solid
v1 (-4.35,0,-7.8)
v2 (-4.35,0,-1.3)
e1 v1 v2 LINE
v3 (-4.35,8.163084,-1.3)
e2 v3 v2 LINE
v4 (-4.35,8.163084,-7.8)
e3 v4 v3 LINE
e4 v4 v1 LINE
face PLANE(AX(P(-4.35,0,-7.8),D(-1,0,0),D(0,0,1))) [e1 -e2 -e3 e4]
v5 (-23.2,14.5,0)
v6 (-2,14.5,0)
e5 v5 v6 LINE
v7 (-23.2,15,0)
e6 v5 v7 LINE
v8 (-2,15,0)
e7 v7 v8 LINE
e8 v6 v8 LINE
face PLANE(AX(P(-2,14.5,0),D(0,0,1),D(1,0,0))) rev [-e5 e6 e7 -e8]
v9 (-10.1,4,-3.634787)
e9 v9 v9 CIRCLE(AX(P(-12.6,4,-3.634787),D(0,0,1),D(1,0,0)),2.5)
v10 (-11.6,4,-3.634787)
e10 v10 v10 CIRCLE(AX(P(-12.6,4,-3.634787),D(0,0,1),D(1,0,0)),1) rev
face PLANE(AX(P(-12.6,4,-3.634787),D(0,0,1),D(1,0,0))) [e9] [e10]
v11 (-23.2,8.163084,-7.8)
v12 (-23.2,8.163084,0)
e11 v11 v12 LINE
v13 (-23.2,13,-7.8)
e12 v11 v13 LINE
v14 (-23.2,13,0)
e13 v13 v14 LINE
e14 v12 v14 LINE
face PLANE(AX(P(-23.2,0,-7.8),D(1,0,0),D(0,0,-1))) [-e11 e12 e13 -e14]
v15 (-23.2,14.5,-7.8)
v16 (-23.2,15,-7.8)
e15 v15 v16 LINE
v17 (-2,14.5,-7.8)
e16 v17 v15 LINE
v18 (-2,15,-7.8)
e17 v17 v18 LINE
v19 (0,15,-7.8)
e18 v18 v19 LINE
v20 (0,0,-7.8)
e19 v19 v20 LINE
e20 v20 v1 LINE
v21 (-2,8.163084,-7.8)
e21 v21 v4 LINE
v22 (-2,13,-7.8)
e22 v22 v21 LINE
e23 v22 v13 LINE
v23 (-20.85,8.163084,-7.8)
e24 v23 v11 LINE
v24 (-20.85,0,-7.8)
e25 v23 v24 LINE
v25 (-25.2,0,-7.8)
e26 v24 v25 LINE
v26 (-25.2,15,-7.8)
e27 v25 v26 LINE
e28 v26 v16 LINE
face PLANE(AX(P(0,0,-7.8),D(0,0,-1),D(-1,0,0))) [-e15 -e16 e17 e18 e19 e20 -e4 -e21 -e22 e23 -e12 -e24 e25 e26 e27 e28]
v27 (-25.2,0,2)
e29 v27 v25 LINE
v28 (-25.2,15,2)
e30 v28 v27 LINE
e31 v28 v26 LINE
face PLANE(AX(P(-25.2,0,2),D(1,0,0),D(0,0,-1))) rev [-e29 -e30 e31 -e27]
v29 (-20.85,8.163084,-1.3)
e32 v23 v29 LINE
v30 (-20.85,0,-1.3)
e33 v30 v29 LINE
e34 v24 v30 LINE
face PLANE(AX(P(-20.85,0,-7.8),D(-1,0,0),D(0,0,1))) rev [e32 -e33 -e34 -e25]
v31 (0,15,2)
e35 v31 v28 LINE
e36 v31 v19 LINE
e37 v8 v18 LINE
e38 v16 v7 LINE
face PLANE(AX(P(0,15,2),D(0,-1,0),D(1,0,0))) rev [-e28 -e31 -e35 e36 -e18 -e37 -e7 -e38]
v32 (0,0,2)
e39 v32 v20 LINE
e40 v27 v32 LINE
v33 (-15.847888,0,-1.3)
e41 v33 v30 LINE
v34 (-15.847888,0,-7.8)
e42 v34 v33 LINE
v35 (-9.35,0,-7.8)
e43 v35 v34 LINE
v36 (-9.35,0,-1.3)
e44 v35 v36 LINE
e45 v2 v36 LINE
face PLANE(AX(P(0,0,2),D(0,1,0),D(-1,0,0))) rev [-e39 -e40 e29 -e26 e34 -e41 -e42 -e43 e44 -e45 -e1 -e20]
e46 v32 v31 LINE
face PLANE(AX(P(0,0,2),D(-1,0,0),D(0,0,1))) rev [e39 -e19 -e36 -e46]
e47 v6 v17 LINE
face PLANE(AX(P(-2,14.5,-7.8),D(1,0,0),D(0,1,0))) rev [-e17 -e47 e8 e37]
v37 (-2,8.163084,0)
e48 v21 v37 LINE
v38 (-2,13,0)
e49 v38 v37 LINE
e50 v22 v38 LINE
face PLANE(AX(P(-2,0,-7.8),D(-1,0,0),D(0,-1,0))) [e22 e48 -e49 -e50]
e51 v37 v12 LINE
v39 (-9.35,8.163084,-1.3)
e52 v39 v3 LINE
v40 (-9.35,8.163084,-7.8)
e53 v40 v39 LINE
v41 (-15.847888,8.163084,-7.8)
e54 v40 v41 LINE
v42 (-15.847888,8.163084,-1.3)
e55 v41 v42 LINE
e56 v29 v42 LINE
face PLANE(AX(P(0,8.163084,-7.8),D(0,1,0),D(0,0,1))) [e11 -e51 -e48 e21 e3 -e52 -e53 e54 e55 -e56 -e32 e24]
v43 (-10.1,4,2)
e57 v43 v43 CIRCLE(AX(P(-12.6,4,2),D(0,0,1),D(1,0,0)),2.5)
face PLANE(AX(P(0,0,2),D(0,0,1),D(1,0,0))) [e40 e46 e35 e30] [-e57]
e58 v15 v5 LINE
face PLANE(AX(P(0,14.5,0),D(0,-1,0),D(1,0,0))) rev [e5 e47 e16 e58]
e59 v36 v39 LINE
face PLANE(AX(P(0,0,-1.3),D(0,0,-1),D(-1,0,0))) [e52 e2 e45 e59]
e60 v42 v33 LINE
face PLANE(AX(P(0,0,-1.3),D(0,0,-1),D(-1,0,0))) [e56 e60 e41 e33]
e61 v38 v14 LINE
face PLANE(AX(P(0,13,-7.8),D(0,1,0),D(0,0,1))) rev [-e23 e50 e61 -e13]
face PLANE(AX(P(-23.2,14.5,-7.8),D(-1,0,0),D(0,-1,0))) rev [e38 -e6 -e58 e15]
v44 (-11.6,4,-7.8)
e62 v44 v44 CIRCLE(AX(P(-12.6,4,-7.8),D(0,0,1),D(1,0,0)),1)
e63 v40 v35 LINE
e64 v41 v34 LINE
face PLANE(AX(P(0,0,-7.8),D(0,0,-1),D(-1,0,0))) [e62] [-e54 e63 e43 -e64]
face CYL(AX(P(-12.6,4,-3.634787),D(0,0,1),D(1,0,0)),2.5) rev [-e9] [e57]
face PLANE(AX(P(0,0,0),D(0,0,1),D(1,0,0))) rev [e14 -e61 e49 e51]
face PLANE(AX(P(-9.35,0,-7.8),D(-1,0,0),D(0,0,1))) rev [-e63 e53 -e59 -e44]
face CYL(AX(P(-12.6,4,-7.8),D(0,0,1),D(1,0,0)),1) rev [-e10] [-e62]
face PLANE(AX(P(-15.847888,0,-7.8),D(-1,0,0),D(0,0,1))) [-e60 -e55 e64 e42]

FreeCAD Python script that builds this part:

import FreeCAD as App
import Part
import Sketcher
from FreeCAD import Vector
Q = App.Units.Quantity

doc = App.newDocument("Part")
body = doc.addObject("PartDesign::Body", "Body")

# Sketch on XY plane
sketch1 = doc.addObject("Sketcher::SketchObject", "Sketch")
body.addObject(sketch1)
sketch1.AttachmentSupport = (doc.XY_Plane, [""])
sketch1.MapMode = "FlatFace"
sketch1.addGeometry([
    Part.LineSegment(Vector(-25.2, 15, 0), Vector(-25.2, 0, 0)),
    Part.LineSegment(Vector(-25.2, 0, 0), Vector(0, 0, 0)),
    Part.LineSegment(Vector(0, 0, 0), Vector(0, 15, 0)),
    Part.LineSegment(Vector(0, 15, 0), Vector(-25.2, 15, 0)),
], False)
sketch1.addConstraint([
    Sketcher.Constraint("Coincident", 0, 2, 1, 1),
    Sketcher.Constraint("Coincident", 1, 2, 2, 1),
    Sketcher.Constraint("Coincident", 2, 2, 3, 1),
    Sketcher.Constraint("Coincident", 3, 2, 0, 1),
    Sketcher.Constraint("Vertical", 0),
    Sketcher.Constraint("Horizontal", 1),
    Sketcher.Constraint("Vertical", 2),
    Sketcher.Constraint("Horizontal", 3),
    Sketcher.Constraint("Coincident", 1, 2, -1, 1),
    Sketcher.Constraint("DistanceY", 0, 2, 0, 1, Q("15 mm")),
    Sketcher.Constraint("DistanceX", 1, 1, 1, 2, Q("25.2 mm")),
])
pad1 = doc.addObject("PartDesign::Pad", "Pad")
body.addObject(pad1)
pad1.Profile = sketch1
pad1.Length = 2

# Sketch on XY plane
sketch2 = doc.addObject("Sketcher::SketchObject", "Sketch001")
body.addObject(sketch2)
sketch2.AttachmentSupport = (doc.XY_Plane, [""])
sketch2.MapMode = "FlatFace"
sketch2.addGeometry([
    Part.LineSegment(Vector(0, 15, 0), Vector(0, 0, 0)),  # 0
    Part.LineSegment(Vector(0, 0, 0), Vector(-2, 0, 0)),  # 1
    Part.LineSegment(Vector(-2, 0, 0), Vector(-2, 13, 0)),  # 2
    Part.LineSegment(Vector(-2, 13, 0), Vector(-23.2, 13, 0)),  # 3
    Part.LineSegment(Vector(-23.2, 13, 0), Vector(-23.2, 0, 0)),  # 4
    Part.LineSegment(Vector(-23.2, 0, 0), Vector(-25.2, 0, 0)),  # 5
    Part.LineSegment(Vector(-25.2, 0, 0), Vector(-25.2, 15, 0)),  # 6
    Part.LineSegment(Vector(-25.2, 15, 0), Vector(0, 15, 0)),  # 7
], False)
sketch2.addConstraint([
    Sketcher.Constraint("Coincident", 0, 2, 1, 1),
    Sketcher.Constraint("Coincident", 1, 2, 2, 1),
    Sketcher.Constraint("Coincident", 2, 2, 3, 1),
    Sketcher.Constraint("Coincident", 3, 2, 4, 1),
    Sketcher.Constraint("Coincident", 4, 2, 5, 1),
    Sketcher.Constraint("Coincident", 5, 2, 6, 1),
    Sketcher.Constraint("Coincident", 6, 2, 7, 1),
    Sketcher.Constraint("Coincident", 7, 2, 0, 1),
    Sketcher.Constraint("Vertical", 0),
    Sketcher.Constraint("Horizontal", 1),
    Sketcher.Constraint("Vertical", 2),
    Sketcher.Constraint("Horizontal", 3),
    Sketcher.Constraint("Vertical", 4),
    Sketcher.Constraint("Horizontal", 5),
    Sketcher.Constraint("Vertical", 6),
    Sketcher.Constraint("Horizontal", 7),
    Sketcher.Constraint("Coincident", 0, 2, -1, 1),
    Sketcher.Constraint("PointOnObject", 4, 2, -1),
    Sketcher.Constraint("Equal", 1, 5),
    Sketcher.Constraint("DistanceX", 1, 2, 1, 1, Q("2 mm")),
    Sketcher.Constraint("DistanceY", 0, 2, 0, 1, Q("15 mm")),
    Sketcher.Constraint("DistanceY", 2, 1, 2, 2, Q("13 mm")),
    Sketcher.Constraint("DistanceX", 3, 2, 3, 1, Q("21.2 mm")),
])
pad2 = doc.addObject("PartDesign::Pad", "Pad001")
body.addObject(pad2)
pad2.Profile = sketch2
pad2.Length = 7.8
pad2.Reversed = True

# Sketch on XY plane
sketch3 = doc.addObject("Sketcher::SketchObject", "Sketch002")
body.addObject(sketch3)
sketch3.AttachmentSupport = (doc.XY_Plane, [""])
sketch3.MapMode = "FlatFace"
sketch3.addGeometry([
    Part.LineSegment(Vector(-2, 8.163084, 0), Vector(-2, 0, 0)),  # 0
    Part.LineSegment(Vector(-2, 0, 0), Vector(-4.35, 0, 0)),  # 1
    Part.LineSegment(Vector(-4.35, 0, 0), Vector(-4.35, 8.163084, 0)),  # 2
    Part.LineSegment(Vector(-4.35, 8.163084, 0), Vector(-2, 8.163084, 0)),  # 3
    Part.LineSegment(Vector(-9.35, 8.163084, 0), Vector(-9.35, 0, 0)),  # 4
    Part.LineSegment(Vector(-9.35, 0, 0), Vector(-15.847888, 0, 0)),  # 5
    Part.LineSegment(Vector(-15.847888, 0, 0), Vector(-15.847888, 8.163084, 0)),  # 6
    Part.LineSegment(Vector(-15.847888, 8.163084, 0), Vector(-9.35, 8.163084, 0)),  # 7
    Part.LineSegment(Vector(-20.85, 8.163084, 0), Vector(-20.85, 0, 0)),  # 8
    Part.LineSegment(Vector(-20.85, 0, 0), Vector(-23.2, 0, 0)),  # 9
    Part.LineSegment(Vector(-23.2, 0, 0), Vector(-23.2, 8.163084, 0)),  # 10
    Part.LineSegment(Vector(-23.2, 8.163084, 0), Vector(-20.85, 8.163084, 0)),  # 11
], False)
sketch3.addConstraint([
    Sketcher.Constraint("Coincident", 0, 2, 1, 1),
    Sketcher.Constraint("Coincident", 1, 2, 2, 1),
    Sketcher.Constraint("Coincident", 2, 2, 3, 1),
    Sketcher.Constraint("Coincident", 3, 2, 0, 1),
    Sketcher.Constraint("Coincident", 4, 2, 5, 1),
    Sketcher.Constraint("Coincident", 5, 2, 6, 1),
    Sketcher.Constraint("Coincident", 6, 2, 7, 1),
    Sketcher.Constraint("Coincident", 7, 2, 4, 1),
    Sketcher.Constraint("Coincident", 8, 2, 9, 1),
    Sketcher.Constraint("Coincident", 9, 2, 10, 1),
    Sketcher.Constraint("Coincident", 10, 2, 11, 1),
    Sketcher.Constraint("Coincident", 11, 2, 8, 1),
    Sketcher.Constraint("Vertical", 0),
    Sketcher.Constraint("Horizontal", 1),
    Sketcher.Constraint("Vertical", 2),
    Sketcher.Constraint("Horizontal", 3),
    Sketcher.Constraint("Vertical", 4),
    Sketcher.Constraint("Horizontal", 5),
    Sketcher.Constraint("Vertical", 6),
    Sketcher.Constraint("Horizontal", 7),
    Sketcher.Constraint("Vertical", 8),
    Sketcher.Constraint("Horizontal", 9),
    Sketcher.Constraint("Vertical", 10),
    Sketcher.Constraint("Horizontal", 11),
    Sketcher.Constraint("PointOnObject", 0, 2, -1),
    Sketcher.Constraint("PointOnObject", 4, 2, -1),
    Sketcher.Constraint("PointOnObject", 8, 2, -1),
    Sketcher.Constraint("Horizontal", 3, 2, 6, 2),
    Sketcher.Constraint("Horizontal", 7, 2, 10, 2),
    Sketcher.Constraint("Equal", 3, 9),
    Sketcher.Constraint("DistanceX", 0, 2, -1, 1, Q("2 mm")),
    Sketcher.Constraint("DistanceX", 4, 2, 1, 2, Q("5 mm")),
    Sketcher.Constraint("DistanceX", 1, 2, 1, 1, Q("2.35 mm")),
    Sketcher.Constraint("DistanceX", 9, 2, -1, 1, Q("23.2 mm")),
    Sketcher.Constraint("DistanceX", 5, 2, 5, 1, Q("6.497888 mm")),
    Sketcher.Constraint("DistanceY", 0, 2, 0, 1, Q("8.163084 mm")),
])
pad3 = doc.addObject("PartDesign::Pad", "Pad002")
body.addObject(pad3)
pad3.Profile = sketch3
pad3.Length = 7.8
pad3.Reversed = True

# Sketch on XY plane
sketch4 = doc.addObject("Sketcher::SketchObject", "Sketch003")
body.addObject(sketch4)
sketch4.AttachmentSupport = (doc.XY_Plane, [""])
sketch4.MapMode = "FlatFace"
sketch4.addGeometry([
    Part.LineSegment(Vector(-4.35, 8.163084, 0), Vector(-4.35, 0, 0)),  # 0
    Part.LineSegment(Vector(-4.35, 0, 0), Vector(-9.35, 0, 0)),  # 1
    Part.LineSegment(Vector(-9.35, 0, 0), Vector(-9.35, 8.163084, 0)),  # 2
    Part.LineSegment(Vector(-9.35, 8.163084, 0), Vector(-4.35, 8.163084, 0)),  # 3
    Part.LineSegment(Vector(-15.847888, 8.163084, 0), Vector(-15.847888, 0, 0)),  # 4
    Part.LineSegment(Vector(-15.847888, 0, 0), Vector(-20.85, 0, 0)),  # 5
    Part.LineSegment(Vector(-20.85, 0, 0), Vector(-20.85, 8.163084, 0)),  # 6
    Part.LineSegment(Vector(-20.85, 8.163084, 0), Vector(-15.847888, 8.163084, 0)),  # 7
], False)
sketch4.addConstraint([
    Sketcher.Constraint("Coincident", 0, 2, 1, 1),
    Sketcher.Constraint("Coincident", 1, 2, 2, 1),
    Sketcher.Constraint("Coincident", 2, 2, 3, 1),
    Sketcher.Constraint("Coincident", 3, 2, 0, 1),
    Sketcher.Constraint("Coincident", 4, 2, 5, 1),
    Sketcher.Constraint("Coincident", 5, 2, 6, 1),
    Sketcher.Constraint("Coincident", 6, 2, 7, 1),
    Sketcher.Constraint("Coincident", 7, 2, 4, 1),
    Sketcher.Constraint("Vertical", 0),
    Sketcher.Constraint("Horizontal", 1),
    Sketcher.Constraint("Vertical", 2),
    Sketcher.Constraint("Horizontal", 3),
    Sketcher.Constraint("Vertical", 4),
    Sketcher.Constraint("Horizontal", 5),
    Sketcher.Constraint("Vertical", 6),
    Sketcher.Constraint("Horizontal", 7),
    Sketcher.Constraint("PointOnObject", 0, 2, -1),
    Sketcher.Constraint("PointOnObject", 4, 2, -1),
    Sketcher.Constraint("Horizontal", 3, 2, 6, 2),
    Sketcher.Constraint("DistanceX", 1, 2, 1, 1, Q("5 mm")),
    Sketcher.Constraint("DistanceX", 5, 2, 1, 2, Q("11.5 mm")),
    Sketcher.Constraint("DistanceX", 0, 2, -1, 1, Q("4.35 mm")),
    Sketcher.Constraint("DistanceX", 5, 2, 5, 1, Q("5.002112 mm")),
    Sketcher.Constraint("DistanceY", 0, 2, 0, 1, Q("8.163084 mm")),
])
pad4 = doc.addObject("PartDesign::Pad", "Pad003")
body.addObject(pad4)
pad4.Profile = sketch4
pad4.Length = 1.3
pad4.Reversed = True

# Sketch on XZ plane
sketch5 = doc.addObject("Sketcher::SketchObject", "Sketch004")
body.addObject(sketch5)
sketch5.AttachmentSupport = (doc.XZ_Plane, [""])
sketch5.MapMode = "FlatFace"
sketch5.AttachmentOffset = App.Placement(Vector(0, 0, -15), App.Rotation())
sketch5.addGeometry([
    Part.LineSegment(Vector(-23.2, -7.8, 0), Vector(-23.2, 0, 0)),
    Part.LineSegment(Vector(-23.2, 0, 0), Vector(-2, 0, 0)),
    Part.LineSegment(Vector(-2, 0, 0), Vector(-2, -7.8, 0)),
    Part.LineSegment(Vector(-2, -7.8, 0), Vector(-23.2, -7.8, 0)),
], False)
sketch5.addConstraint([
    Sketcher.Constraint("Coincident", 0, 2, 1, 1),
    Sketcher.Constraint("Coincident", 1, 2, 2, 1),
    Sketcher.Constraint("Coincident", 2, 2, 3, 1),
    Sketcher.Constraint("Coincident", 3, 2, 0, 1),
    Sketcher.Constraint("Vertical", 0),
    Sketcher.Constraint("Horizontal", 1),
    Sketcher.Constraint("Vertical", 2),
    Sketcher.Constraint("Horizontal", 3),
    Sketcher.Constraint("PointOnObject", 0, 2, -1),
    Sketcher.Constraint("DistanceX", 1, 1, 1, 2, Q("21.2 mm")),
    Sketcher.Constraint("DistanceY", 0, 1, 0, 2, Q("7.8 mm")),
    Sketcher.Constraint("DistanceX", 1, 2, -1, 1, Q("2 mm")),
])
pocket1 = doc.addObject("PartDesign::Pocket", "Pocket")
body.addObject(pocket1)
pocket1.Profile = sketch5
pocket1.Length = 0.5
pocket1.Reversed = True

# Sketch on XY plane
sketch6 = doc.addObject("Sketcher::SketchObject", "Sketch005")
body.addObject(sketch6)
sketch6.AttachmentSupport = (doc.XY_Plane, [""])
sketch6.MapMode = "FlatFace"
sketch6.AttachmentOffset = App.Placement(Vector(0, 0, 2), App.Rotation())
sketch6.addGeometry(Part.Circle(Vector(-12.6, 4, 0), Vector(0, 0, 1), 1), False)
sketch6.addConstraint([
    Sketcher.Constraint("Diameter", 0, Q("2 mm")),
    Sketcher.Constraint("DistanceY", -1, 1, 0, 3, Q("4 mm")),
    Sketcher.Constraint("DistanceX", 0, 3, -1, 1, Q("12.6 mm")),
])
pocket2 = doc.addObject("PartDesign::Pocket", "Pocket001")
body.addObject(pocket2)
pocket2.Profile = sketch6
pocket2.Type = "ThroughAll"

# Sketch on XY plane
sketch7 = doc.addObject("Sketcher::SketchObject", "Sketch006")
body.addObject(sketch7)
sketch7.AttachmentSupport = (doc.XY_Plane, [""])
sketch7.MapMode = "FlatFace"
sketch7.AttachmentOffset = App.Placement(Vector(0, 0, 2), App.Rotation())
sketch7.addGeometry(Part.Circle(Vector(-12.6, 4, 0), Vector(0, 0, 1), 2.5), False)
sketch7.addConstraint([
    Sketcher.Constraint("Diameter", 0, Q("5 mm")),
    Sketcher.Constraint("DistanceY", -1, 1, 0, 3, Q("4 mm")),
    Sketcher.Constraint("DistanceX", 0, 3, -1, 1, Q("12.6 mm")),
])
pocket3 = doc.addObject("PartDesign::Pocket", "Pocket002")
body.addObject(pocket3)
pocket3.Profile = sketch7
pocket3.Length = 5.634787

doc.recompute()
